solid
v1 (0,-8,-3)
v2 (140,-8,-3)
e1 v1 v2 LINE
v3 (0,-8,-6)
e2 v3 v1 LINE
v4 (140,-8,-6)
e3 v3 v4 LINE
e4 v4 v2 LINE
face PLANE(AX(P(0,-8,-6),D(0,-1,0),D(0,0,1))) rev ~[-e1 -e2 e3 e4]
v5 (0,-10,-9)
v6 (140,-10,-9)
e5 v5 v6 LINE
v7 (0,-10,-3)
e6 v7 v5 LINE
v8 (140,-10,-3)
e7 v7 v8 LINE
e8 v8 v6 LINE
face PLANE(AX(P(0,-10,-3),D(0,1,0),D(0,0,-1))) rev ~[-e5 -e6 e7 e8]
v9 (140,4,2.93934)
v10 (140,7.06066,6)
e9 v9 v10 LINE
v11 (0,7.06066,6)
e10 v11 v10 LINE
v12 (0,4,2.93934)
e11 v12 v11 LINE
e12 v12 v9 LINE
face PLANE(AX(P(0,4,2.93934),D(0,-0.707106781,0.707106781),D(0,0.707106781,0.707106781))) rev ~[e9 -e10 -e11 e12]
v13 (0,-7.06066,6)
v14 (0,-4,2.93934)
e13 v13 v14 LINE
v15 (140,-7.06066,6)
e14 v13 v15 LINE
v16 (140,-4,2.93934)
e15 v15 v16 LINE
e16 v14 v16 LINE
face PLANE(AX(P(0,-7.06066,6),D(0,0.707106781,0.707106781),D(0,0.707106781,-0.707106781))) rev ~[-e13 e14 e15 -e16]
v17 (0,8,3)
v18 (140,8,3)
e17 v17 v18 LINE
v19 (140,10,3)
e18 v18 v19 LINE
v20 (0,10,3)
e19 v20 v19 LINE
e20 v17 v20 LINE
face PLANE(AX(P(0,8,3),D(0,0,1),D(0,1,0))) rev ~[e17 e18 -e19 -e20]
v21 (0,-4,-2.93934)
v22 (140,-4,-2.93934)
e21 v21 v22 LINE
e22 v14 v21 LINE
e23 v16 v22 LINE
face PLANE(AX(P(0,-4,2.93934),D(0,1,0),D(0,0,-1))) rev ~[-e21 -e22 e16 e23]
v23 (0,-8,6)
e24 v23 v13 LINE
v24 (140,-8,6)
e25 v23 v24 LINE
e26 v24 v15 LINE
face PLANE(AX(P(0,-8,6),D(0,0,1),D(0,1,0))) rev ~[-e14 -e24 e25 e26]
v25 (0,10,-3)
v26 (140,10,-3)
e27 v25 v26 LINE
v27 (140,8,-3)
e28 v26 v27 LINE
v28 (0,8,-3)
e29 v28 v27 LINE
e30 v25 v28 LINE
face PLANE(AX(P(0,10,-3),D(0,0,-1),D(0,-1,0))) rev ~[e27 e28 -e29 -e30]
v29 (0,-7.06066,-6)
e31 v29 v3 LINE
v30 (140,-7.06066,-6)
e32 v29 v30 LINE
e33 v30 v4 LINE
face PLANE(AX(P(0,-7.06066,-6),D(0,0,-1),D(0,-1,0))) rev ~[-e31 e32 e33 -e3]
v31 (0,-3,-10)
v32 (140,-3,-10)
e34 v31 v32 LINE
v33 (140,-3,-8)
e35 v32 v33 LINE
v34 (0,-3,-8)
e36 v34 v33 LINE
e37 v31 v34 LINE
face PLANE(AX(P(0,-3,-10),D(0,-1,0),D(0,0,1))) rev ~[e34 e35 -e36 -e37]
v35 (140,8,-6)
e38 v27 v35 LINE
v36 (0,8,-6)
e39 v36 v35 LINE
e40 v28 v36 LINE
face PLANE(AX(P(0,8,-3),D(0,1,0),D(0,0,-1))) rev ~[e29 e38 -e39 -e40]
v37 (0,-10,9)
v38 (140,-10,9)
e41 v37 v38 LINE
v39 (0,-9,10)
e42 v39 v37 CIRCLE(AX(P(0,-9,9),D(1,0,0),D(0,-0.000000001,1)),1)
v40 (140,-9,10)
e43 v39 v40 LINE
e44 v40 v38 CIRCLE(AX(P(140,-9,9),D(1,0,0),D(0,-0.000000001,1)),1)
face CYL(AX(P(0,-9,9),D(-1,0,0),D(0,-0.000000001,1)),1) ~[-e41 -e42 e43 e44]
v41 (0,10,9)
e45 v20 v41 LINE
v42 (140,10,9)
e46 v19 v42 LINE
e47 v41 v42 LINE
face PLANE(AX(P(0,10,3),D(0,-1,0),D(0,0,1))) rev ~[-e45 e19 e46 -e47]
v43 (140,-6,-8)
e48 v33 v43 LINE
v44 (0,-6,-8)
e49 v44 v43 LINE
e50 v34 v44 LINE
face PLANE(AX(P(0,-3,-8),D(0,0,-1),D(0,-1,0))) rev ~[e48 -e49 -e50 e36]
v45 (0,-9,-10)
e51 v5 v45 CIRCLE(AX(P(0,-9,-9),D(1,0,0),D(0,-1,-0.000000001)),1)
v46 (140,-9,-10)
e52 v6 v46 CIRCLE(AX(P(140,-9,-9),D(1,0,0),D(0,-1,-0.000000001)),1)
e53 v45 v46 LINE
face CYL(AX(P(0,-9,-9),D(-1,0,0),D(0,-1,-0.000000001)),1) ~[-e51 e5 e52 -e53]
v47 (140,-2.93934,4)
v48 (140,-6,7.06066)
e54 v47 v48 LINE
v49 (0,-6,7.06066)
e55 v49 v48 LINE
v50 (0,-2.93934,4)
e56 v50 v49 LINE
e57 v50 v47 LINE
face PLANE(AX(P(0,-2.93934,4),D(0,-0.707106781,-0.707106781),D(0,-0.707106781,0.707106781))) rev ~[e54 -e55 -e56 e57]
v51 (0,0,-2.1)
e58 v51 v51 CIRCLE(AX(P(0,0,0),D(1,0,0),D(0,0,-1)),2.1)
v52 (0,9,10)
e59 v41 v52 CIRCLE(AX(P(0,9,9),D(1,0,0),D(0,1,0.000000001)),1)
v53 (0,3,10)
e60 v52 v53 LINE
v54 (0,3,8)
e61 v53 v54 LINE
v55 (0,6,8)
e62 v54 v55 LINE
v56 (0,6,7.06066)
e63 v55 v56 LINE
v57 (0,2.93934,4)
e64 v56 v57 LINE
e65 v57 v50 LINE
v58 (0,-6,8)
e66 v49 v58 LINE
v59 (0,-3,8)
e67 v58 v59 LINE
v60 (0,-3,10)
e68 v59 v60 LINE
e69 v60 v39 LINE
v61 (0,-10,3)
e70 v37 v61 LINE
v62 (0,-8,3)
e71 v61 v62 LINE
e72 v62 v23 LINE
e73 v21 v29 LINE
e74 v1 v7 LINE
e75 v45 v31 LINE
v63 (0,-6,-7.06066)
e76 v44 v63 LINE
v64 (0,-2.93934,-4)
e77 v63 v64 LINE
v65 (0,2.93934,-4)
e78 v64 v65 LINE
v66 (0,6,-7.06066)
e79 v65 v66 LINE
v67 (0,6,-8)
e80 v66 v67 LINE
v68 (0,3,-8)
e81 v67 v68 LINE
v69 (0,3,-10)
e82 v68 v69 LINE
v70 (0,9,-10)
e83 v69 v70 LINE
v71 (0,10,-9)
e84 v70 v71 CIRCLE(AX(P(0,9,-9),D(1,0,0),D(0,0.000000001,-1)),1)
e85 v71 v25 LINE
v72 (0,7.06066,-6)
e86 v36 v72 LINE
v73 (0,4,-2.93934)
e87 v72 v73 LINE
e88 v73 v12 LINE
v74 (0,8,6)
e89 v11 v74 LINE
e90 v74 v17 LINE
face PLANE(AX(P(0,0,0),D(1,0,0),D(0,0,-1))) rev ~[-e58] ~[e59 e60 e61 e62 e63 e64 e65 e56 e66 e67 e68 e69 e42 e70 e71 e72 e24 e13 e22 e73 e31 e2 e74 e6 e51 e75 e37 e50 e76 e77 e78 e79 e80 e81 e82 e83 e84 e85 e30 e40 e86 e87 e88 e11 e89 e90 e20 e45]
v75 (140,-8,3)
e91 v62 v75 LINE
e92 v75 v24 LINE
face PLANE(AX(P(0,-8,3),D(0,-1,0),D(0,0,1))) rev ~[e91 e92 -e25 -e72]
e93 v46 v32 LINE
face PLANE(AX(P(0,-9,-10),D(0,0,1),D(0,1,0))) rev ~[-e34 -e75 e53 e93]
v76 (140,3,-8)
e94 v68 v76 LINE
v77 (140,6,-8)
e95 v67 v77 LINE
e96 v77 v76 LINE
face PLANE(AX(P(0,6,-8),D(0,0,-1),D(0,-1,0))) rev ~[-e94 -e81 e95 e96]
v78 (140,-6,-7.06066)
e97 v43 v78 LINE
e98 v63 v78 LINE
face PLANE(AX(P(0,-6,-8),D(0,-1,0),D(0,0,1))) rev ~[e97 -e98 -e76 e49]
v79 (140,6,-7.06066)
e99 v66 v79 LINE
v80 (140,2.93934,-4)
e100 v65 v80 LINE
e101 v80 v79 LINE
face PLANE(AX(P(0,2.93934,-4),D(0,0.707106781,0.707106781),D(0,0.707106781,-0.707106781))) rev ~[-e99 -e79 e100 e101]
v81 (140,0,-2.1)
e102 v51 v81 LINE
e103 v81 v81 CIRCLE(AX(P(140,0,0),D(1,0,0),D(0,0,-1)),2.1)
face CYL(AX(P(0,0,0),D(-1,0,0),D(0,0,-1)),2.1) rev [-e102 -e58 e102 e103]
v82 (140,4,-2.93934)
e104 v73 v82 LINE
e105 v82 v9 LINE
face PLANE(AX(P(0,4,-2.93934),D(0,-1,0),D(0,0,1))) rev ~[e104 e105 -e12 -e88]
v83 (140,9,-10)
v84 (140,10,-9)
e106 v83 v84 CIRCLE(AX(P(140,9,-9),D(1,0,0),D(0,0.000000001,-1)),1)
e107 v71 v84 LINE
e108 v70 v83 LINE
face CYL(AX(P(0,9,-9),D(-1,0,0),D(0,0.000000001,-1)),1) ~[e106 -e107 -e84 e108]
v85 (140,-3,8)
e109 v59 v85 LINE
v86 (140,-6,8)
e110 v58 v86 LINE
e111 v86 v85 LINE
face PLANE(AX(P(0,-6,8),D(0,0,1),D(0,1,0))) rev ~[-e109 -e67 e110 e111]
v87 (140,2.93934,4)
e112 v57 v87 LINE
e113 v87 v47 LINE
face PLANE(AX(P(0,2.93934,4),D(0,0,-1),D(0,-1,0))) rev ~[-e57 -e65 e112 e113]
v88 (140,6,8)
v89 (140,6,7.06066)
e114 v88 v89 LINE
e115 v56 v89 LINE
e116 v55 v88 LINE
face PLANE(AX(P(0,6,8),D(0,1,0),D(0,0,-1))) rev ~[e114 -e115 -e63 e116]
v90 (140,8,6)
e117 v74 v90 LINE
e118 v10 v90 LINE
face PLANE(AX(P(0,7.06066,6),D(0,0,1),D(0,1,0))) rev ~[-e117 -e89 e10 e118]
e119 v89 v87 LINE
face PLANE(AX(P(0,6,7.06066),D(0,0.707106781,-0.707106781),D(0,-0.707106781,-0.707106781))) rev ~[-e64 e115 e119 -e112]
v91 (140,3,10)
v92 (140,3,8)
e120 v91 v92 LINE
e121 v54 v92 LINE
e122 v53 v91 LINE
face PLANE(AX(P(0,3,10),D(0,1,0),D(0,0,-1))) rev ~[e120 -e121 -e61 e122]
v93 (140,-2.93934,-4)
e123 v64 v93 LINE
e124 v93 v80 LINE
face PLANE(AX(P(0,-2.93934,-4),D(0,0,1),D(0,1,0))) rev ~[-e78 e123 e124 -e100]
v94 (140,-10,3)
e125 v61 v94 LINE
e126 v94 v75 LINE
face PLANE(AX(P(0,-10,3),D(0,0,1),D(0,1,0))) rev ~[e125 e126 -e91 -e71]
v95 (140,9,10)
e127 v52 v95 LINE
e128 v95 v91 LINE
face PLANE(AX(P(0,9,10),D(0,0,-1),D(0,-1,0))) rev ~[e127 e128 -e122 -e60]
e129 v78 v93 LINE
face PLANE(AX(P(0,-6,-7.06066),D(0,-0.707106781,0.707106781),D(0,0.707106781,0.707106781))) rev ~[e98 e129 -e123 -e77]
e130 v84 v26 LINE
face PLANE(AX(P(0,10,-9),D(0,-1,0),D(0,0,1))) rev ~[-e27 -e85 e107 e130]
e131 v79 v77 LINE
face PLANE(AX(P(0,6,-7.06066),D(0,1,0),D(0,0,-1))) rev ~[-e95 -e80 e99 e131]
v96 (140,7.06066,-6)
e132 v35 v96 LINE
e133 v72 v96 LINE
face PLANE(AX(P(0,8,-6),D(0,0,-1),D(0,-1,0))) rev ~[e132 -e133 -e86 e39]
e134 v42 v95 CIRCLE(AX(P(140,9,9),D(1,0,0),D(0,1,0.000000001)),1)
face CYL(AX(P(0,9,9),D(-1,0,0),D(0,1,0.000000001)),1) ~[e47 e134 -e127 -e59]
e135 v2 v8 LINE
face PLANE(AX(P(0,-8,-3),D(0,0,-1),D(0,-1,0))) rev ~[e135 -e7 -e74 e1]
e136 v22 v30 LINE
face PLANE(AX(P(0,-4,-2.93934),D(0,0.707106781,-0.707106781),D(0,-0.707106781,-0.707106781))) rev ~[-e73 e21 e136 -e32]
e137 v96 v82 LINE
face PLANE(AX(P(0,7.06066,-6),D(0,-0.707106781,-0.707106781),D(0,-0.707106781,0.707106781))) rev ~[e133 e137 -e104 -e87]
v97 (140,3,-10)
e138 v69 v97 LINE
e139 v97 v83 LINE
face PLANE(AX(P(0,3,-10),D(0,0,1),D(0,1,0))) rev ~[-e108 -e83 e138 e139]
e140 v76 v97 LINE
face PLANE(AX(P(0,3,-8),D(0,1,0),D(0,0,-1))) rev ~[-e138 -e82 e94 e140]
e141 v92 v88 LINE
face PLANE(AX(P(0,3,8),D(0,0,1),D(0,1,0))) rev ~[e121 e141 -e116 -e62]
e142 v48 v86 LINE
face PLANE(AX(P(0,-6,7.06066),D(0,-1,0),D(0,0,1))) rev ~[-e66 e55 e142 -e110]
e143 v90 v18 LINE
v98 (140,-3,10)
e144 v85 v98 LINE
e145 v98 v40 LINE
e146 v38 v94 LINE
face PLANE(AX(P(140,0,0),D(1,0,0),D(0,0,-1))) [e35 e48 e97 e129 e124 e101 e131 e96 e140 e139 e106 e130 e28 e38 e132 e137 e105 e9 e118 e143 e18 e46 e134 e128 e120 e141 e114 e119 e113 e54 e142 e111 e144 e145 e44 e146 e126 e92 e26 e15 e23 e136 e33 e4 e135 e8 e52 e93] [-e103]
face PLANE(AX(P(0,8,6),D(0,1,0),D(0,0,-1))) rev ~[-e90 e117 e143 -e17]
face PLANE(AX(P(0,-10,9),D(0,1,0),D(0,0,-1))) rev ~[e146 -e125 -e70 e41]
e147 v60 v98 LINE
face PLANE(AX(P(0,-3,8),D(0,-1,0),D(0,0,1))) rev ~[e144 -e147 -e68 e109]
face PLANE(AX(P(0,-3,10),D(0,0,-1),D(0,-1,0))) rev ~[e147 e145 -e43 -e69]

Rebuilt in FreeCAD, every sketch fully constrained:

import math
import FreeCAD as App
import Part
import Sketcher
from FreeCAD import Vector
Q = App.Units.Quantity

doc = App.newDocument("Part")
body = doc.addObject("PartDesign::Body", "Body")

# Sketch on YZ plane
sketch1 = body.newObject("Sketcher::SketchObject", "Sketch")
sketch1.AttachmentSupport = (doc.getObject("YZ_Plane"), [""])
sketch1.MapMode = "FlatFace"
sketch1.addGeometry(Part.LineSegment(Vector(9, 10, 0), Vector(3, 10, 0)), False)
sketch1.addGeometry(Part.LineSegment(Vector(3, 10, 0), Vector(3, 8, 0)), False)
sketch1.addGeometry(Part.LineSegment(Vector(3, 8, 0), Vector(6, 8, 0)), False)
sketch1.addGeometry(Part.LineSegment(Vector(6, 8, 0), Vector(6, 7.1, 0)), False)
sketch1.addGeometry(Part.LineSegment(Vector(6, 7.1, 0), Vector(2.9, 4, 0)), False)
sketch1.addGeometry(Part.LineSegment(Vector(2.9, 4, 0), Vector(-2.9, 4, 0)), False)
sketch1.addGeometry(Part.LineSegment(Vector(-2.9, 4, 0), Vector(-6, 7.1, 0)), False)
sketch1.addGeometry(Part.LineSegment(Vector(-6, 7.1, 0), Vector(-6, 8, 0)), False)
sketch1.addGeometry(Part.LineSegment(Vector(-6, 8, 0), Vector(-3, 8, 0)), False)
sketch1.addGeometry(Part.LineSegment(Vector(-3, 8, 0), Vector(-3, 10, 0)), False)
sketch1.addGeometry(Part.LineSegment(Vector(-3, 10, 0), Vector(-9, 10, 0)), False)
sketch1.addGeometry(Part.ArcOfCircle(Part.Circle(Vector(-9, 9, 0), Vector(0, 0, 1), 1), math.radians(90), math.radians(180)), False)
sketch1.addGeometry(Part.LineSegment(Vector(-10, 9, 0), Vector(-10, 3, 0)), False)
sketch1.addGeometry(Part.LineSegment(Vector(-10, 3, 0), Vector(-8, 3, 0)), False)
sketch1.addGeometry(Part.LineSegment(Vector(-8, 3, 0), Vector(-8, 6, 0)), False)
sketch1.addGeometry(Part.LineSegment(Vector(-8, 6, 0), Vector(-7.1, 6, 0)), False)
sketch1.addGeometry(Part.LineSegment(Vector(-7.1, 6, 0), Vector(-4, 2.9, 0)), False)
sketch1.addGeometry(Part.LineSegment(Vector(-4, 2.9, 0), Vector(-4, -2.9, 0)), False)
sketch1.addGeometry(Part.LineSegment(Vector(-4, -2.9, 0), Vector(-7.1, -6, 0)), False)
sketch1.addGeometry(Part.LineSegment(Vector(-7.1, -6, 0), Vector(-8, -6, 0)), False)
sketch1.addGeometry(Part.LineSegment(Vector(-8, -6, 0), Vector(-8, -3, 0)), False)
sketch1.addGeometry(Part.LineSegment(Vector(-8, -3, 0), Vector(-10, -3, 0)), False)
sketch1.addGeometry(Part.LineSegment(Vector(-10, -3, 0), Vector(-10, -9, 0)), False)
sketch1.addGeometry(Part.ArcOfCircle(Part.Circle(Vector(-9, -9, 0), Vector(0, 0, 1), 1), math.radians(-180), math.radians(-90)), False)
sketch1.addGeometry(Part.LineSegment(Vector(-9, -10, 0), Vector(-3, -10, 0)), False)
sketch1.addGeometry(Part.LineSegment(Vector(-3, -10, 0), Vector(-3, -8, 0)), False)
sketch1.addGeometry(Part.LineSegment(Vector(-3, -8, 0), Vector(-6, -8, 0)), False)
sketch1.addGeometry(Part.LineSegment(Vector(-6, -8, 0), Vector(-6, -7.1, 0)), False)
sketch1.addGeometry(Part.LineSegment(Vector(-6, -7.1, 0), Vector(-2.9, -4, 0)), False)
sketch1.addGeometry(Part.LineSegment(Vector(-2.9, -4, 0), Vector(2.9, -4, 0)), False)
sketch1.addGeometry(Part.LineSegment(Vector(2.9, -4, 0), Vector(6, -7.1, 0)), False)
sketch1.addGeometry(Part.LineSegment(Vector(6, -7.1, 0), Vector(6, -8, 0)), False)
sketch1.addGeometry(Part.LineSegment(Vector(6, -8, 0), Vector(3, -8, 0)), False)
sketch1.addGeometry(Part.LineSegment(Vector(3, -8, 0), Vector(3, -10, 0)), False)
sketch1.addGeometry(Part.LineSegment(Vector(3, -10, 0), Vector(9, -10, 0)), False)
sketch1.addGeometry(Part.ArcOfCircle(Part.Circle(Vector(9, -9, 0), Vector(0, 0, 1), 1), math.radians(-90), math.radians(0)), False)
sketch1.addGeometry(Part.LineSegment(Vector(10, -9, 0), Vector(10, -3, 0)), False)
sketch1.addGeometry(Part.LineSegment(Vector(10, -3, 0), Vector(8, -3, 0)), False)
sketch1.addGeometry(Part.LineSegment(Vector(8, -3, 0), Vector(8, -6, 0)), False)
sketch1.addGeometry(Part.LineSegment(Vector(8, -6, 0), Vector(7.1, -6, 0)), False)
sketch1.addGeometry(Part.LineSegment(Vector(7.1, -6, 0), Vector(4, -2.9, 0)), False)
sketch1.addGeometry(Part.LineSegment(Vector(4, -2.9, 0), Vector(4, 2.9, 0)), False)
sketch1.addGeometry(Part.LineSegment(Vector(4, 2.9, 0), Vector(7.1, 6, 0)), False)
sketch1.addGeometry(Part.LineSegment(Vector(7.1, 6, 0), Vector(8, 6, 0)), False)
sketch1.addGeometry(Part.LineSegment(Vector(8, 6, 0), Vector(8, 3, 0)), False)
sketch1.addGeometry(Part.LineSegment(Vector(8, 3, 0), Vector(10, 3, 0)), False)
sketch1.addGeometry(Part.LineSegment(Vector(10, 3, 0), Vector(10, 9, 0)), False)
sketch1.addGeometry(Part.ArcOfCircle(Part.Circle(Vector(9, 9, 0), Vector(0, 0, 1), 1), math.radians(0), math.radians(90)), False)
sketch1.addGeometry(Part.Circle(Vector(0, 0, 0), Vector(0, 0, 1), 2.1), False)
sketch1.addConstraint(Sketcher.Constraint("Coincident", 0, 2, 1, 1))
sketch1.addConstraint(Sketcher.Constraint("Coincident", 1, 2, 2, 1))
sketch1.addConstraint(Sketcher.Constraint("Coincident", 2, 2, 3, 1))
sketch1.addConstraint(Sketcher.Constraint("Coincident", 3, 2, 4, 1))
sketch1.addConstraint(Sketcher.Constraint("Coincident", 4, 2, 5, 1))
sketch1.addConstraint(Sketcher.Constraint("Coincident", 5, 2, 6, 1))
sketch1.addConstraint(Sketcher.Constraint("Coincident", 6, 2, 7, 1))
sketch1.addConstraint(Sketcher.Constraint("Coincident", 7, 2, 8, 1))
sketch1.addConstraint(Sketcher.Constraint("Coincident", 8, 2, 9, 1))
sketch1.addConstraint(Sketcher.Constraint("Coincident", 9, 2, 10, 1))
sketch1.addConstraint(Sketcher.Constraint("Tangent", 10, 2, 11, 1))
sketch1.addConstraint(Sketcher.Constraint("Tangent", 11, 2, 12, 1))
sketch1.addConstraint(Sketcher.Constraint("Coincident", 12, 2, 13, 1))
sketch1.addConstraint(Sketcher.Constraint("Coincident", 13, 2, 14, 1))
sketch1.addConstraint(Sketcher.Constraint("Coincident", 14, 2, 15, 1))
sketch1.addConstraint(Sketcher.Constraint("Coincident", 15, 2, 16, 1))
sketch1.addConstraint(Sketcher.Constraint("Coincident", 16, 2, 17, 1))
sketch1.addConstraint(Sketcher.Constraint("Coincident", 17, 2, 18, 1))
sketch1.addConstraint(Sketcher.Constraint("Coincident", 18, 2, 19, 1))
sketch1.addConstraint(Sketcher.Constraint("Coincident", 19, 2, 20, 1))
sketch1.addConstraint(Sketcher.Constraint("Coincident", 20, 2, 21, 1))
sketch1.addConstraint(Sketcher.Constraint("Coincident", 21, 2, 22, 1))
sketch1.addConstraint(Sketcher.Constraint("Tangent", 22, 2, 23, 1))
sketch1.addConstraint(Sketcher.Constraint("Tangent", 23, 2, 24, 1))
sketch1.addConstraint(Sketcher.Constraint("Coincident", 24, 2, 25, 1))
sketch1.addConstraint(Sketcher.Constraint("Coincident", 25, 2, 26, 1))
sketch1.addConstraint(Sketcher.Constraint("Coincident", 26, 2, 27, 1))
sketch1.addConstraint(Sketcher.Constraint("Coincident", 27, 2, 28, 1))
sketch1.addConstraint(Sketcher.Constraint("Coincident", 28, 2, 29, 1))
sketch1.addConstraint(Sketcher.Constraint("Coincident", 29, 2, 30, 1))
sketch1.addConstraint(Sketcher.Constraint("Coincident", 30, 2, 31, 1))
sketch1.addConstraint(Sketcher.Constraint("Coincident", 31, 2, 32, 1))
sketch1.addConstraint(Sketcher.Constraint("Coincident", 32, 2, 33, 1))
sketch1.addConstraint(Sketcher.Constraint("Coincident", 33, 2, 34, 1))
sketch1.addConstraint(Sketcher.Constraint("Tangent", 34, 2, 35, 1))
sketch1.addConstraint(Sketcher.Constraint("Tangent", 35, 2, 36, 1))
sketch1.addConstraint(Sketcher.Constraint("Coincident", 36, 2, 37, 1))
sketch1.addConstraint(Sketcher.Constraint("Coincident", 37, 2, 38, 1))
sketch1.addConstraint(Sketcher.Constraint("Coincident", 38, 2, 39, 1))
sketch1.addConstraint(Sketcher.Constraint("Coincident", 39, 2, 40, 1))
sketch1.addConstraint(Sketcher.Constraint("Coincident", 40, 2, 41, 1))
sketch1.addConstraint(Sketcher.Constraint("Coincident", 41, 2, 42, 1))
sketch1.addConstraint(Sketcher.Constraint("Coincident", 42, 2, 43, 1))
sketch1.addConstraint(Sketcher.Constraint("Coincident", 43, 2, 44, 1))
sketch1.addConstraint(Sketcher.Constraint("Coincident", 44, 2, 45, 1))
sketch1.addConstraint(Sketcher.Constraint("Coincident", 45, 2, 46, 1))
sketch1.addConstraint(Sketcher.Constraint("Tangent", 46, 2, 47, 1))
sketch1.addConstraint(Sketcher.Constraint("Tangent", 47, 2, 0, 1))
sketch1.addConstraint(Sketcher.Constraint("Horizontal", 0))
sketch1.addConstraint(Sketcher.Constraint("Vertical", 1))
sketch1.addConstraint(Sketcher.Constraint("Horizontal", 2))
sketch1.addConstraint(Sketcher.Constraint("Vertical", 3))
sketch1.addConstraint(Sketcher.Constraint("Horizontal", 5))
sketch1.addConstraint(Sketcher.Constraint("Vertical", 7))
sketch1.addConstraint(Sketcher.Constraint("Horizontal", 8))
sketch1.addConstraint(Sketcher.Constraint("Vertical", 9))
sketch1.addConstraint(Sketcher.Constraint("Horizontal", 10))
sketch1.addConstraint(Sketcher.Constraint("Vertical", 12))
sketch1.addConstraint(Sketcher.Constraint("Horizontal", 13))
sketch1.addConstraint(Sketcher.Constraint("Vertical", 14))
sketch1.addConstraint(Sketcher.Constraint("Horizontal", 15))
sketch1.addConstraint(Sketcher.Constraint("Vertical", 17))
sketch1.addConstraint(Sketcher.Constraint("Horizontal", 19))
sketch1.addConstraint(Sketcher.Constraint("Vertical", 20))
sketch1.addConstraint(Sketcher.Constraint("Horizontal", 21))
sketch1.addConstraint(Sketcher.Constraint("Vertical", 22))
sketch1.addConstraint(Sketcher.Constraint("Horizontal", 24))
sketch1.addConstraint(Sketcher.Constraint("Vertical", 25))
sketch1.addConstraint(Sketcher.Constraint("Horizontal", 26))
sketch1.addConstraint(Sketcher.Constraint("Vertical", 27))
sketch1.addConstraint(Sketcher.Constraint("Horizontal", 29))
sketch1.addConstraint(Sketcher.Constraint("Vertical", 31))
sketch1.addConstraint(Sketcher.Constraint("Horizontal", 32))
sketch1.addConstraint(Sketcher.Constraint("Vertical", 33))
sketch1.addConstraint(Sketcher.Constraint("Horizontal", 34))
sketch1.addConstraint(Sketcher.Constraint("Vertical", 36))
sketch1.addConstraint(Sketcher.Constraint("Horizontal", 37))
sketch1.addConstraint(Sketcher.Constraint("Vertical", 38))
sketch1.addConstraint(Sketcher.Constraint("Horizontal", 39))
sketch1.addConstraint(Sketcher.Constraint("Vertical", 41))
sketch1.addConstraint(Sketcher.Constraint("Horizontal", 43))
sketch1.addConstraint(Sketcher.Constraint("Vertical", 44))
sketch1.addConstraint(Sketcher.Constraint("Horizontal", 45))
sketch1.addConstraint(Sketcher.Constraint("Vertical", 46))
sketch1.addConstraint(Sketcher.Constraint("Coincident", 48, 3, -1, 1))
sketch1.addConstraint(Sketcher.Constraint("Equal", 11, 23))
sketch1.addConstraint(Sketcher.Constraint("Equal", 23, 35))
sketch1.addConstraint(Sketcher.Constraint("Equal", 35, 47))
sketch1.addConstraint(Sketcher.Constraint("Symmetric", 11, 3, 35, 3, -1, 1))
sketch1.addConstraint(Sketcher.Constraint("Symmetric", 23, 3, 47, 3, -1, 1))
sketch1.addConstraint(Sketcher.Constraint("Symmetric", 1, 2, 25, 2, -1, 1))
sketch1.addConstraint(Sketcher.Constraint("Symmetric", 3, 2, 27, 2, -1, 1))
sketch1.addConstraint(Sketcher.Constraint("Symmetric", 4, 2, 28, 2, -1, 1))
sketch1.addConstraint(Sketcher.Constraint("Symmetric", 6, 2, 30, 2, -1, 1))
sketch1.addConstraint(Sketcher.Constraint("Symmetric", 8, 2, 32, 2, -1, 1))
sketch1.addConstraint(Sketcher.Constraint("Symmetric", 13, 2, 37, 2, -1, 1))
sketch1.addConstraint(Sketcher.Constraint("Symmetric", 15, 2, 39, 2, -1, 1))
sketch1.addConstraint(Sketcher.Constraint("Symmetric", 16, 2, 40, 2, -1, 1))
sketch1.addConstraint(Sketcher.Constraint("Symmetric", 18, 2, 42, 2, -1, 1))
sketch1.addConstraint(Sketcher.Constraint("Symmetric", 20, 2, 44, 2, -1, 1))
sketch1.addConstraint(Sketcher.Constraint("Symmetric", 23, 3, 35, 3, -2))
sketch1.addConstraint(Sketcher.Constraint("Symmetric", 3, 2, 6, 2, -2))
sketch1.addConstraint(Sketcher.Constraint("Symmetric", 1, 2, 8, 2, -2))
sketch1.addConstraint(Sketcher.Constraint("Symmetric", 20, 2, 37, 2, -2))
sketch1.addConstraint(Sketcher.Constraint("Symmetric", 18, 2, 39, 2, -2))
sketch1.addConstraint(Sketcher.Constraint("Perpendicular", 4, 6))
sketch1.addConstraint(Sketcher.Constraint("Parallel", 6, 16))
sketch1.addConstraint(Sketcher.Constraint("Perpendicular", 16, 18))
sketch1.addConstraint(Sketcher.Constraint("Perpendicular", 28, 30))
sketch1.addConstraint(Sketcher.Constraint("Perpendicular", 40, 42))
sketch1.addConstraint(Sketcher.Constraint("Horizontal", 17, 2, 40, 2))
sketch1.addConstraint(Sketcher.Constraint("Equal", 45, 1))
sketch1.addConstraint(Sketcher.Constraint("Equal", 43, 3))
sketch1.addConstraint(Sketcher.Constraint("Equal", 34, 12))
sketch1.addConstraint(Sketcher.Constraint("Equal", 32, 14))
sketch1.addConstraint(Sketcher.Constraint("Equal", 29, 17))
sketch1.addConstraint(Sketcher.Constraint("Equal", 6, 16))
sketch1.addConstraint(Sketcher.Constraint("Radius", 11, Q("1 mm")))
sketch1.addConstraint(Sketcher.Constraint("Diameter", 48, Q("4.2 mm")))
sketch1.addConstraint(Sketcher.Constraint("DistanceX", 0, 2, 0, 1, Q("6 mm")))
sketch1.addConstraint(Sketcher.Constraint("DistanceX", 2, 1, 2, 2, Q("3 mm")))
sketch1.addConstraint(Sketcher.Constraint("DistanceX", 13, 1, 13, 2, Q("2 mm")))
sketch1.addConstraint(Sketcher.Constraint("DistanceX", 11, 3, -1, 1, Q("9 mm")))
sketch1.addConstraint(Sketcher.Constraint("DistanceY", -1, 1, 4, 2, Q("4 mm")))
sketch1.addConstraint(Sketcher.Constraint("DistanceX", 5, 2, 5, 1, Q("5.87868 mm")))
pad1 = body.newObject("PartDesign::Pad", "Pad")
pad1.Profile = sketch1
pad1.Length = 140

doc.recompute()
